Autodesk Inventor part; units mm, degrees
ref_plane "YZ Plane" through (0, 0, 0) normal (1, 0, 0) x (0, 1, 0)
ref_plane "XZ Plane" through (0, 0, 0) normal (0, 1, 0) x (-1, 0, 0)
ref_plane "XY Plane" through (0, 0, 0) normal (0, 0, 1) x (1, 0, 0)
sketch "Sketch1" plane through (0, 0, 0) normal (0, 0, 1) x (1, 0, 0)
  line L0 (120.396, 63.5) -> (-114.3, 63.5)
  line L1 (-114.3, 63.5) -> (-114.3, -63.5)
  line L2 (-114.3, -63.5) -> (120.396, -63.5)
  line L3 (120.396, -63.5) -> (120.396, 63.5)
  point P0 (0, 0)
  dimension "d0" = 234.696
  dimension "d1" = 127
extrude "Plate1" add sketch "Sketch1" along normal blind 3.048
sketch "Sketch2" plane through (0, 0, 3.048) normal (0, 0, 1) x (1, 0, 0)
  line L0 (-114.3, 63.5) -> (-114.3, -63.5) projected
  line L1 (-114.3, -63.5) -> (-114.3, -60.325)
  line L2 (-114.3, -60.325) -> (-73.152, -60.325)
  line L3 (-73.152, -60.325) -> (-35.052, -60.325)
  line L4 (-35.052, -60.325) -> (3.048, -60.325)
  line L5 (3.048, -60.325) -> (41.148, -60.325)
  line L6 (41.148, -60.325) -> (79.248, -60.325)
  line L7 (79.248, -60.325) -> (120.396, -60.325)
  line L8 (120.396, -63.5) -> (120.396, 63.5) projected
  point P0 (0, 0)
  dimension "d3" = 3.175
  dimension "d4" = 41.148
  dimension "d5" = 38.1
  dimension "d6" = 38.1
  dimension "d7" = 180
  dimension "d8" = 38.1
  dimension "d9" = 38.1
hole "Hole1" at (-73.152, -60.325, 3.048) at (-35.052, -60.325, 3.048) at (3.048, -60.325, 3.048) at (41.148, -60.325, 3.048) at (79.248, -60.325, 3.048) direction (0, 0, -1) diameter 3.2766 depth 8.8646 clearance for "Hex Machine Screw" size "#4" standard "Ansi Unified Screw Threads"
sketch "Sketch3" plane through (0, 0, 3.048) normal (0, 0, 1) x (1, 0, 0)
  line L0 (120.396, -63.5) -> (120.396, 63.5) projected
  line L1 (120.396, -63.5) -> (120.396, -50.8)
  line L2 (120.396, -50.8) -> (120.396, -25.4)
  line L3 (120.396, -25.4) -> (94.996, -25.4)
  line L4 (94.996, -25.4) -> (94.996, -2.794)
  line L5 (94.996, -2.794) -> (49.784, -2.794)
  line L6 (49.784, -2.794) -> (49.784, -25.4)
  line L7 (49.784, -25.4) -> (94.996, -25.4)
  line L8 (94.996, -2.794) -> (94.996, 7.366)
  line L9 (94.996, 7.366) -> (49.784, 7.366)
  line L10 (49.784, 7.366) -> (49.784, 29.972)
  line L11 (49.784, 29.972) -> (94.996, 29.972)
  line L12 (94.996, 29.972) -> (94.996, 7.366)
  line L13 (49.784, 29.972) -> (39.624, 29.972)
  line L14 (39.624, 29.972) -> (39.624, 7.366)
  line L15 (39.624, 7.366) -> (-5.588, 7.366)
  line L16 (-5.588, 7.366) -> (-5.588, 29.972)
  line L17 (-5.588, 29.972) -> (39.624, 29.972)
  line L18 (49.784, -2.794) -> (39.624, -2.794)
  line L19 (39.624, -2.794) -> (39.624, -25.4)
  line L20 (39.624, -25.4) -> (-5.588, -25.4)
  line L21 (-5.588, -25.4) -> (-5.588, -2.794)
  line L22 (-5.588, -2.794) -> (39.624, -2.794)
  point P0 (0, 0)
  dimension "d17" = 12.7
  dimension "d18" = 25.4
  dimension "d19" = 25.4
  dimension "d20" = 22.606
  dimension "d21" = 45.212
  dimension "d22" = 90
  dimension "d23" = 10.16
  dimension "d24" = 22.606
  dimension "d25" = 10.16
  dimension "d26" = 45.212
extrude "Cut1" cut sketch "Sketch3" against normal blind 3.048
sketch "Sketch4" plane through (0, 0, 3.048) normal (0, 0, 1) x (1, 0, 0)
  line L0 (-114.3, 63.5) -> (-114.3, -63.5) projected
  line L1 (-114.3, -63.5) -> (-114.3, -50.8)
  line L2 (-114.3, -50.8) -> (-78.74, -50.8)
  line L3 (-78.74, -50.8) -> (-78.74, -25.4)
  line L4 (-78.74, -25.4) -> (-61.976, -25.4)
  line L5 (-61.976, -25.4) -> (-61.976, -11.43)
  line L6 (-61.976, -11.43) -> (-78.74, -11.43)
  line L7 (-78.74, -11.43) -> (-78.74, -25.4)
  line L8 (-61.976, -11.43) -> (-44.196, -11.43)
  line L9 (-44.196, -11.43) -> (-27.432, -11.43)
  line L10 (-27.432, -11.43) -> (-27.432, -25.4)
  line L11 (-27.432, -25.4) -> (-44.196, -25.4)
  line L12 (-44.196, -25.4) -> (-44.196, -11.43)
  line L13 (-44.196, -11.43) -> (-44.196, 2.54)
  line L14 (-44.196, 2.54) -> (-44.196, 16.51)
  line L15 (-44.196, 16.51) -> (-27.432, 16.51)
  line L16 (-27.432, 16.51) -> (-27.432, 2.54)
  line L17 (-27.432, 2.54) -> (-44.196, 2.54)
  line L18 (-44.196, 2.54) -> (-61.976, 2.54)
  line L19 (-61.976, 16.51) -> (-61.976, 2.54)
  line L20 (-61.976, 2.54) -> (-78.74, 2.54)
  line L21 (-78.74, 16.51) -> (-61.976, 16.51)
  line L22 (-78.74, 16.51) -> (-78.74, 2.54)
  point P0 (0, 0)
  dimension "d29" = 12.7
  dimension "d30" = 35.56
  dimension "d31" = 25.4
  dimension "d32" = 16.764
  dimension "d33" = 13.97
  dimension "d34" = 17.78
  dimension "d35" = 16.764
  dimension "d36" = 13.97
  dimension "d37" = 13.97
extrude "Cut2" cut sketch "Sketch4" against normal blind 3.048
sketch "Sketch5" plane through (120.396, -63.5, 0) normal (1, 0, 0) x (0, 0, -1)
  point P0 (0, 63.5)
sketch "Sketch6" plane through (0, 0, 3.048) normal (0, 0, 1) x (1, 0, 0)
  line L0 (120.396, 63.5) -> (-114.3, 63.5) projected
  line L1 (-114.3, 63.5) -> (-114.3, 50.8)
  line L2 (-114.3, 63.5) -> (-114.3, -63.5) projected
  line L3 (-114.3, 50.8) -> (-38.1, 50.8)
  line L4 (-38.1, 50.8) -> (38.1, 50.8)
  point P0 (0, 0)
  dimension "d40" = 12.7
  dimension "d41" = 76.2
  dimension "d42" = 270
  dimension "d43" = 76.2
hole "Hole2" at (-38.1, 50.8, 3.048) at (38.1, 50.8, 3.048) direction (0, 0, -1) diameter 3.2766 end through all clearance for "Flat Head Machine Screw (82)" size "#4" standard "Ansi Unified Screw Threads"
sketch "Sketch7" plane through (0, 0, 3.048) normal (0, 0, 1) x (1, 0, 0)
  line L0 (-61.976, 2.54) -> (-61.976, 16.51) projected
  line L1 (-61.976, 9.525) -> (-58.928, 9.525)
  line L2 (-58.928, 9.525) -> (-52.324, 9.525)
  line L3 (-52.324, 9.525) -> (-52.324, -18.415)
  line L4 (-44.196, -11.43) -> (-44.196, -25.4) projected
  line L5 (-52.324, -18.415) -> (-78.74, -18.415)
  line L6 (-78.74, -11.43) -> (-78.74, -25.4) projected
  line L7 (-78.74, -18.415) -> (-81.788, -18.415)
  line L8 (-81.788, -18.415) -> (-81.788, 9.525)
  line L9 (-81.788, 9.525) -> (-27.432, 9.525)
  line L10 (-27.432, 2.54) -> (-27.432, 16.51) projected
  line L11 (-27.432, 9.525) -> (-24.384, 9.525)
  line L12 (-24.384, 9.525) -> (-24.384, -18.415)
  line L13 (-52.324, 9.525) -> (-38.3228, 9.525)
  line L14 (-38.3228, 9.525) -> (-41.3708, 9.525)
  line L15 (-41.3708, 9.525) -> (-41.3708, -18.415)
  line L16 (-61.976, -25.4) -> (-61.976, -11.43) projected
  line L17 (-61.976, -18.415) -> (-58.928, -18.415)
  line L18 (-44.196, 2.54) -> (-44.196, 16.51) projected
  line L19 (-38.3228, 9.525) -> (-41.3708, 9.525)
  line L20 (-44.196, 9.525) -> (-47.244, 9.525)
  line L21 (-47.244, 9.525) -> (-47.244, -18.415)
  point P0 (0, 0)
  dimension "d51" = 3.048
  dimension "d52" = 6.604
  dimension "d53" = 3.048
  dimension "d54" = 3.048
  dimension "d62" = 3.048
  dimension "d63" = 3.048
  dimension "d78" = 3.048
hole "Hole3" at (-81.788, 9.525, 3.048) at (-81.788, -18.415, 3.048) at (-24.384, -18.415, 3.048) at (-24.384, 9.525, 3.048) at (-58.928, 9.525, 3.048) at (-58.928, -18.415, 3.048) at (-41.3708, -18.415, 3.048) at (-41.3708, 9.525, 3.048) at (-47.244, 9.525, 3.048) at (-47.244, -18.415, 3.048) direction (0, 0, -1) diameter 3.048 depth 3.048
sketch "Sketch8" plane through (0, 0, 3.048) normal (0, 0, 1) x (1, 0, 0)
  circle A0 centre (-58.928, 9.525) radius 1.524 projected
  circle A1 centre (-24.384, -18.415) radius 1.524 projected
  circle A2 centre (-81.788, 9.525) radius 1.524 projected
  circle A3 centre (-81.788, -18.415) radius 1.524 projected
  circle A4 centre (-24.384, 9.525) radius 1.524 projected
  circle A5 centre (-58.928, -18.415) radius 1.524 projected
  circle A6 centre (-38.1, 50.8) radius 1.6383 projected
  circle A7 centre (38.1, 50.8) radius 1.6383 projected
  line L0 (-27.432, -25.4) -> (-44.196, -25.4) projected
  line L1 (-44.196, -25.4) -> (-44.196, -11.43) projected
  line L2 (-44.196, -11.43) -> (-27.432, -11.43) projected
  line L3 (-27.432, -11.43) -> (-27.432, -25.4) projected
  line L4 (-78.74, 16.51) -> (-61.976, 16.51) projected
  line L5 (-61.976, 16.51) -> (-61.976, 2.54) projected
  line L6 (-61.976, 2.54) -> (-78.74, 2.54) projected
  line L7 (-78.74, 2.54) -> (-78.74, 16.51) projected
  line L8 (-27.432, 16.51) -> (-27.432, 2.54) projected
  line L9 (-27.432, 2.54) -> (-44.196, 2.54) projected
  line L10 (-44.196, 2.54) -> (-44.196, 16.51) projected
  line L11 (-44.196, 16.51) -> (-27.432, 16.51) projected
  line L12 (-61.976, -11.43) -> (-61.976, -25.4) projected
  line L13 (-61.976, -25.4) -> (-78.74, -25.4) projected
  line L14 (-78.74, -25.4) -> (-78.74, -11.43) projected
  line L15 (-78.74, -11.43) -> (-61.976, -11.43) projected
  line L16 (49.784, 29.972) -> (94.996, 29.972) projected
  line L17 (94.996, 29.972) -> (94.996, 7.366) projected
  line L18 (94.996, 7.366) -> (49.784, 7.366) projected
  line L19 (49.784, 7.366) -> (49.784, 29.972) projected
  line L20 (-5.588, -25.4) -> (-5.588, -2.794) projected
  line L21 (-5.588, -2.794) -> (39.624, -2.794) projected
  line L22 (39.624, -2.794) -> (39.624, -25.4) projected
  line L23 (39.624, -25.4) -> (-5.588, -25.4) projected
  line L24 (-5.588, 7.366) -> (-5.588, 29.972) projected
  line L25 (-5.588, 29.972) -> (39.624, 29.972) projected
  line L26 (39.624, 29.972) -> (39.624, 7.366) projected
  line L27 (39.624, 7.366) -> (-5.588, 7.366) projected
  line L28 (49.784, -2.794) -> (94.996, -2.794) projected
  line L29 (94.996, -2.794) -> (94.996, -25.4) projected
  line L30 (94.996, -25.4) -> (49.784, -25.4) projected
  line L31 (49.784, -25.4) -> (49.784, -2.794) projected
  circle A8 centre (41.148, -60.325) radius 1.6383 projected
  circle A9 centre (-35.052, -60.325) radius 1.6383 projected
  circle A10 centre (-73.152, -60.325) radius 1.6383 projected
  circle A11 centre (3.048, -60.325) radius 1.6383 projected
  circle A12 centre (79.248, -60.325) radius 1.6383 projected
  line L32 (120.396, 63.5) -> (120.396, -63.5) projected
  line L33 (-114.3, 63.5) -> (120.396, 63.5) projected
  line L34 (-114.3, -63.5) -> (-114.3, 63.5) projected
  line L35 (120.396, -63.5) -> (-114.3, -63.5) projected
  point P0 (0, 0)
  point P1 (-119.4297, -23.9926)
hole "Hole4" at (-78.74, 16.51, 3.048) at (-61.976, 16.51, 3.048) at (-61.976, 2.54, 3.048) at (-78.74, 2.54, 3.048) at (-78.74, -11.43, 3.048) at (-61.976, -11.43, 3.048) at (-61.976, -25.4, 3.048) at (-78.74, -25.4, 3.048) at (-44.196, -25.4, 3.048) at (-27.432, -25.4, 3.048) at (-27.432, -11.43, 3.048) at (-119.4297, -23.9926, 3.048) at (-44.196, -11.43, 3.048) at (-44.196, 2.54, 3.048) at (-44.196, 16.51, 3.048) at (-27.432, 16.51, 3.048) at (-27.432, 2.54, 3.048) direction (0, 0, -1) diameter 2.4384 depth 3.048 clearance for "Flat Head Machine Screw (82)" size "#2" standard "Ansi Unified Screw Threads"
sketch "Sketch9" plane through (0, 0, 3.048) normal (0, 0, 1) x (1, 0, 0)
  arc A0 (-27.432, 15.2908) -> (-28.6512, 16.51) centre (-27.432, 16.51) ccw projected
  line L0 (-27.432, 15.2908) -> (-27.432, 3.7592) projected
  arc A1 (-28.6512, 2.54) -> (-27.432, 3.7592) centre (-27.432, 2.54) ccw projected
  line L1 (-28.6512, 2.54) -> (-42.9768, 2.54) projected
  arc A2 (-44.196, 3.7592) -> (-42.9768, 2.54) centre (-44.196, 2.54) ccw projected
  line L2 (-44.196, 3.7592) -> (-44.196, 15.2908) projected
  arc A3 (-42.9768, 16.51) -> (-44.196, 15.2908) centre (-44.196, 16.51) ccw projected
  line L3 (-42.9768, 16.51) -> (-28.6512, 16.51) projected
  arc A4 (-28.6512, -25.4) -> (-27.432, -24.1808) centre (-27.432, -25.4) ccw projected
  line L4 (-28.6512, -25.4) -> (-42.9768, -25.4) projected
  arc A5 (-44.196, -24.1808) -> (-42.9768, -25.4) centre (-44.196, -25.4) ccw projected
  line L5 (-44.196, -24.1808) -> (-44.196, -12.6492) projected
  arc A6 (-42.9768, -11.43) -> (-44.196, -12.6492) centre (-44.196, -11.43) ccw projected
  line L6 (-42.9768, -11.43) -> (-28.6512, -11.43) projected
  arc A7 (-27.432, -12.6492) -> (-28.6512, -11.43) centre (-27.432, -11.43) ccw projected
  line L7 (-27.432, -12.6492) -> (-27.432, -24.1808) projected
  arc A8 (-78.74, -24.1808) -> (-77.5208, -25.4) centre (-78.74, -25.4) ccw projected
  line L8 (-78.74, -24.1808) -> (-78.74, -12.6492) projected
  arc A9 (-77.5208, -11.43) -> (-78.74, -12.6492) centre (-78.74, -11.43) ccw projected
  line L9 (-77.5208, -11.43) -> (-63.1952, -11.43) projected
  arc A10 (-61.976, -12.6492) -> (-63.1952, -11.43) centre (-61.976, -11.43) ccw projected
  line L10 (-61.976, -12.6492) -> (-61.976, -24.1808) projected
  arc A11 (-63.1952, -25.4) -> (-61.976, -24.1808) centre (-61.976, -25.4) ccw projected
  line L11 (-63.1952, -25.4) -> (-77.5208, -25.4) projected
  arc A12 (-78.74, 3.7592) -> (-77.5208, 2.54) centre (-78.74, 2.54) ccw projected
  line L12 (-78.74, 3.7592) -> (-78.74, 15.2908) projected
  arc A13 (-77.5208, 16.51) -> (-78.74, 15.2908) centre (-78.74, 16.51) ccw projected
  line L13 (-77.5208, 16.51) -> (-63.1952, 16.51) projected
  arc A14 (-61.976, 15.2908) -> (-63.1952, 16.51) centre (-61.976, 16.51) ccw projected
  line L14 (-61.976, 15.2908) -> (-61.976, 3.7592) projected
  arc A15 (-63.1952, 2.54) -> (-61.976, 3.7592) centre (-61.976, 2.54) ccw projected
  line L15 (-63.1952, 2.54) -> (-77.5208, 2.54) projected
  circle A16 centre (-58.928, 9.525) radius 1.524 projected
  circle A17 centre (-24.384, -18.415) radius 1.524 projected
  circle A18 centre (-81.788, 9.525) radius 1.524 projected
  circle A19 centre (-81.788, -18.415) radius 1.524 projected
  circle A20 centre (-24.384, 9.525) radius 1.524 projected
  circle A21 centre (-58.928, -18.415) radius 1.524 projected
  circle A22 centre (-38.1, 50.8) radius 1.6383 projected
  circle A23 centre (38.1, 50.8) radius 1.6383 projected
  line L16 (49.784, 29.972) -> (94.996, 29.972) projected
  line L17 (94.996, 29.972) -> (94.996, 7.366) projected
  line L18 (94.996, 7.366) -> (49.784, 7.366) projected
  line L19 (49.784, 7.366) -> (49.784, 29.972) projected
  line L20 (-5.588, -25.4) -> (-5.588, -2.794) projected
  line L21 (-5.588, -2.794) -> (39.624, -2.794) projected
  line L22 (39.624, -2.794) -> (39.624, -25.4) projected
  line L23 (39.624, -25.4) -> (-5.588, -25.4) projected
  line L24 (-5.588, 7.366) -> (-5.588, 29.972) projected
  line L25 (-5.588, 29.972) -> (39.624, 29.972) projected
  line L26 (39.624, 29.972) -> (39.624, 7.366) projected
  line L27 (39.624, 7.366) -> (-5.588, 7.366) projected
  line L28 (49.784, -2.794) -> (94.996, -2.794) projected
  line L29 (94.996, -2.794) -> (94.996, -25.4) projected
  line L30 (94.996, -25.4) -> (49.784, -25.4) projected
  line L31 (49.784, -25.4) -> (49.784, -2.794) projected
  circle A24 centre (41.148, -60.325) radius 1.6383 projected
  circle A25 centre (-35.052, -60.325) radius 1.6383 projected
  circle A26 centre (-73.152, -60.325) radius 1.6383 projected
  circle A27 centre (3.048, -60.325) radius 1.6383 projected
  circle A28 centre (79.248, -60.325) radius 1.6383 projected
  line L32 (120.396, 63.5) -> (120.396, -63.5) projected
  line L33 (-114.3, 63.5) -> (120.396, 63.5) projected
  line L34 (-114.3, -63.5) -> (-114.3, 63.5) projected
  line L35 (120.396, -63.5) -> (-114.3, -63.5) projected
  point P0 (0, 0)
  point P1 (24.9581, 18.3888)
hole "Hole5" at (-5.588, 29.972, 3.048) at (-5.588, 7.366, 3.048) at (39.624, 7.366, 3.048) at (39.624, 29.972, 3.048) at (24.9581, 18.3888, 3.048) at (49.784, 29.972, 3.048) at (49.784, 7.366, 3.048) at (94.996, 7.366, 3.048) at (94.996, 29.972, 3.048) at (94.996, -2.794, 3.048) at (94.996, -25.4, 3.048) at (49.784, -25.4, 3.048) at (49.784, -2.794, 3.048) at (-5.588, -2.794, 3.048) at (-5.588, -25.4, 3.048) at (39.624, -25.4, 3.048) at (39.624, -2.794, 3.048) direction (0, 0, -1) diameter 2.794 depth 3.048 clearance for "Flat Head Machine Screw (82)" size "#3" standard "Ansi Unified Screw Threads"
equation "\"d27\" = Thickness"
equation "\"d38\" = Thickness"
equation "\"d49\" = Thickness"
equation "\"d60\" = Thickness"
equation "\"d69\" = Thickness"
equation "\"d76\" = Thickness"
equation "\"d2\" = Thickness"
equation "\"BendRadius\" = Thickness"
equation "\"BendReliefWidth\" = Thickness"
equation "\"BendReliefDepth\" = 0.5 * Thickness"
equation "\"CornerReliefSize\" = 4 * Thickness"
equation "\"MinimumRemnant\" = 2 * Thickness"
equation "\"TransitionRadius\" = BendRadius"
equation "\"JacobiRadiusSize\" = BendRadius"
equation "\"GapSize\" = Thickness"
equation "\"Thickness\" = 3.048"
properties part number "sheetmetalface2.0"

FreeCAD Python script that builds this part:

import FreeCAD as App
import Part
import Sketcher
from FreeCAD import Vector
Q = App.Units.Quantity

doc = App.newDocument("Part")
params = doc.addObject("Spreadsheet::Sheet", "Params")
for row, (alias, value) in enumerate([
    ("sketch1_height", "5 in"),
    ("sketch1_width", "9.24 in"),
    ("pad1_length", "0.12 in"),
    ("sketch2_diameter", "0.129 in"),
    ("hole_diameter", "0.129 in"),
    ("hole_depth", "0.349 in"),
    ("sketch3_width", "1.78 in"),
    ("sketch3_height", "0.89 in"),
    ("pocket1_length", "0.12 in"),
    ("sketch4_width", "0.66 in"),
    ("sketch4_height", "0.55 in"),
    ("pocket2_length", "0.12 in"),
    ("sketch5_diameter", "0.129 in"),
    ("hole2_diameter", "0.129 in"),
    ("sketch6_diameter", "0.12 in"),
    ("hole3_diameter", "0.12 in"),
    ("hole3_depth", "0.12 in"),
    ("sketch7_diameter", "0.096 in"),
    ("hole4_diameter", "0.096 in"),
    ("hole4_depth", "0.12 in"),
    ("sketch8_diameter", "0.11 in"),
    ("hole5_diameter", "0.11 in"),
    ("hole5_depth", "0.12 in"),
], start=1):
    params.set(f"A{row}", alias)
    params.set(f"B{row}", "=" + value)
    params.setAlias(f"B{row}", alias)

body = doc.addObject("PartDesign::Body", "Body")

# Sketch on XY plane
sketch1 = doc.addObject("Sketcher::SketchObject", "Sketch")
body.addObject(sketch1)
sketch1.AttachmentSupport = (doc.XY_Plane, [""])
sketch1.MapMode = "FlatFace"
sketch1.addGeometry([
    Part.LineSegment(Vector(120.396, -63.5, 0), Vector(120.396, 63.5, 0)),
    Part.LineSegment(Vector(120.396, 63.5, 0), Vector(-114.3, 63.5, 0)),
    Part.LineSegment(Vector(-114.3, 63.5, 0), Vector(-114.3, -63.5, 0)),
    Part.LineSegment(Vector(-114.3, -63.5, 0), Vector(120.396, -63.5, 0)),
], False)
sketch1.addConstraint([
    Sketcher.Constraint("Coincident", 0, 2, 1, 1),
    Sketcher.Constraint("Coincident", 1, 2, 2, 1),
    Sketcher.Constraint("Coincident", 2, 2, 3, 1),
    Sketcher.Constraint("Coincident", 3, 2, 0, 1),
    Sketcher.Constraint("Vertical", 0),
    Sketcher.Constraint("Horizontal", 1),
    Sketcher.Constraint("Vertical", 2),
    Sketcher.Constraint("Horizontal", 3),
    Sketcher.Constraint("DistanceY", 0, 1, 0, 2, Q("5 in")),
    Sketcher.Constraint("DistanceX", 1, 2, 1, 1, Q("9.24 in")),
    Sketcher.Constraint("DistanceY", -1, 1, 0, 2, Q("2.5 in")),
    Sketcher.Constraint("DistanceX", 1, 2, -1, 1, Q("4.5 in")),
])
sketch1.setExpression("Constraints[8]", "Params.sketch1_height")
sketch1.setExpression("Constraints[9]", "Params.sketch1_width")
pad1 = doc.addObject("PartDesign::Pad", "Pad")
body.addObject(pad1)
pad1.Profile = sketch1
pad1.setExpression("Length", "Params.pad1_length")

# Sketch on XY plane
sketch2 = doc.addObject("Sketcher::SketchObject", "Sketch001")
body.addObject(sketch2)
sketch2.AttachmentSupport = (doc.XY_Plane, [""])
sketch2.MapMode = "FlatFace"
sketch2.AttachmentOffset = App.Placement(Vector(0, 0, 0.12 * 25.4), App.Rotation())
sketch2.addGeometry([
    Part.Circle(Vector(-73.152, -60.325, 0), Vector(0, 0, 1), 1.6383),  # 0
    Part.Circle(Vector(-35.052, -60.325, 0), Vector(0, 0, 1), 1.6383),  # 1
    Part.Circle(Vector(3.048, -60.325, 0), Vector(0, 0, 1), 1.6383),  # 2
    Part.Circle(Vector(41.148, -60.325, 0), Vector(0, 0, 1), 1.6383),  # 3
    Part.Circle(Vector(79.248, -60.325, 0), Vector(0, 0, 1), 1.6383),  # 4
], False)
sketch2.addConstraint([
    Sketcher.Constraint("Equal", 0, 1),
    Sketcher.Constraint("Equal", 1, 2),
    Sketcher.Constraint("Equal", 2, 3),
    Sketcher.Constraint("Equal", 3, 4),
    Sketcher.Constraint("Horizontal", 0, 3, 1, 3),
    Sketcher.Constraint("Horizontal", 1, 3, 2, 3),
    Sketcher.Constraint("Horizontal", 2, 3, 3, 3),
    Sketcher.Constraint("Horizontal", 3, 3, 4, 3),
    Sketcher.Constraint("Diameter", 0, Q("0.129 in")),
    Sketcher.Constraint("DistanceX", 0, 3, 2, 3, Q("3 in")),
    Sketcher.Constraint("DistanceX", 1, 3, 3, 3, Q("3 in")),
    Sketcher.Constraint("DistanceX", 2, 3, 4, 3, Q("3 in")),
    Sketcher.Constraint("DistanceX", 0, 3, 1, 3, Q("1.5 in")),
    Sketcher.Constraint("DistanceX", 0, 3, -1, 1, Q("2.88 in")),
    Sketcher.Constraint("DistanceY", 0, 3, -1, 1, Q("2.375 in")),
])
sketch2.setExpression("Constraints[8]", "Params.sketch2_diameter")
doc.recompute()
hole = doc.addObject("PartDesign::Hole", "Hole")
body.addObject(hole)
hole.Profile = sketch2
hole.ThreadType = "None"
hole.setExpression("Diameter", "Params.hole_diameter")
hole.DepthType = "Dimension"
hole.setExpression("Depth", "Params.hole_depth")
hole.DrillPoint = "Flat"

# Sketch on XY plane
sketch3 = doc.addObject("Sketcher::SketchObject", "Sketch002")
body.addObject(sketch3)
sketch3.AttachmentSupport = (doc.XY_Plane, [""])
sketch3.MapMode = "FlatFace"
sketch3.AttachmentOffset = App.Placement(Vector(0, 0, 0.12 * 25.4), App.Rotation())
sketch3.addGeometry([
    Part.LineSegment(Vector(49.784, -25.4, 0), Vector(94.996, -25.4, 0)),  # 0
    Part.LineSegment(Vector(94.996, -25.4, 0), Vector(94.996, -2.794, 0)),  # 1
    Part.LineSegment(Vector(94.996, -2.794, 0), Vector(49.784, -2.794, 0)),  # 2
    Part.LineSegment(Vector(49.784, -2.794, 0), Vector(49.784, -25.4, 0)),  # 3
    Part.LineSegment(Vector(39.624, -25.4, 0), Vector(39.624, -2.794, 0)),  # 4
    Part.LineSegment(Vector(39.624, -2.794, 0), Vector(-5.588, -2.794, 0)),  # 5
    Part.LineSegment(Vector(-5.588, -2.794, 0), Vector(-5.588, -25.4, 0)),  # 6
    Part.LineSegment(Vector(-5.588, -25.4, 0), Vector(39.624, -25.4, 0)),  # 7
    Part.LineSegment(Vector(39.624, 7.366, 0), Vector(39.624, 29.972, 0)),  # 8
    Part.LineSegment(Vector(39.624, 29.972, 0), Vector(-5.588, 29.972, 0)),  # 9
    Part.LineSegment(Vector(-5.588, 29.972, 0), Vector(-5.588, 7.366, 0)),  # 10
    Part.LineSegment(Vector(-5.588, 7.366, 0), Vector(39.624, 7.366, 0)),  # 11
    Part.LineSegment(Vector(49.784, 7.366, 0), Vector(94.996, 7.366, 0)),  # 12
    Part.LineSegment(Vector(94.996, 7.366, 0), Vector(94.996, 29.972, 0)),  # 13
    Part.LineSegment(Vector(94.996, 29.972, 0), Vector(49.784, 29.972, 0)),  # 14
    Part.LineSegment(Vector(49.784, 29.972, 0), Vector(49.784, 7.366, 0)),  # 15
], False)
sketch3.addConstraint([
    Sketcher.Constraint("Coincident", 0, 2, 1, 1),
    Sketcher.Constraint("Coincident", 1, 2, 2, 1),
    Sketcher.Constraint("Coincident", 2, 2, 3, 1),
    Sketcher.Constraint("Coincident", 3, 2, 0, 1),
    Sketcher.Constraint("Coincident", 4, 2, 5, 1),
    Sketcher.Constraint("Coincident", 5, 2, 6, 1),
    Sketcher.Constraint("Coincident", 6, 2, 7, 1),
    Sketcher.Constraint("Coincident", 7, 2, 4, 1),
    Sketcher.Constraint("Coincident", 8, 2, 9, 1),
    Sketcher.Constraint("Coincident", 9, 2, 10, 1),
    Sketcher.Constraint("Coincident", 10, 2, 11, 1),
    Sketcher.Constraint("Coincident", 11, 2, 8, 1),
    Sketcher.Constraint("Coincident", 12, 2, 13, 1),
    Sketcher.Constraint("Coincident", 13, 2, 14, 1),
    Sketcher.Constraint("Coincident", 14, 2, 15, 1),
    Sketcher.Constraint("Coincident", 15, 2, 12, 1),
    Sketcher.Constraint("Horizontal", 0),
    Sketcher.Constraint("Vertical", 1),
    Sketcher.Constraint("Horizontal", 2),
    Sketcher.Constraint("Vertical", 3),
    Sketcher.Constraint("Vertical", 4),
    Sketcher.Constraint("Horizontal", 5),
    Sketcher.Constraint("Vertical", 6),
    Sketcher.Constraint("Horizontal", 7),
    Sketcher.Constraint("Vertical", 8),
    Sketcher.Constraint("Horizontal", 9),
    Sketcher.Constraint("Vertical", 10),
    Sketcher.Constraint("Horizontal", 11),
    Sketcher.Constraint("Horizontal", 12),
    Sketcher.Constraint("Vertical", 13),
    Sketcher.Constraint("Horizontal", 14),
    Sketcher.Constraint("Vertical", 15),
    Sketcher.Constraint("Horizontal", 2, 2, 4, 2),
    Sketcher.Constraint("Horizontal", 3, 2, 6, 2),
    Sketcher.Constraint("Horizontal", 11, 2, 12, 2),
    Sketcher.Constraint("Horizontal", 9, 2, 13, 2),
    Sketcher.Constraint("Vertical", 7, 2, 8, 2),
    Sketcher.Constraint("Vertical", 6, 2, 9, 2),
    Sketcher.Constraint("Vertical", 1, 2, 12, 2),
    Sketcher.Constraint("Vertical", 3, 2, 14, 2),
    Sketcher.Constraint("Equal", 2, 5),
    Sketcher.Constraint("Equal", 6, 8),
    Sketcher.Constraint("DistanceY", 0, 2, -1, 1, Q("1 in")),
    Sketcher.Constraint("DistanceX", 0, 1, 0, 2, Q("1.78 in")),
    Sketcher.Constraint("DistanceY", 1, 1, 1, 2, Q("0.89 in")),
    Sketcher.Constraint("DistanceX", 4, 2, 2, 2, Q("0.4 in")),
    Sketcher.Constraint("DistanceY", 5, 2, 10, 2, Q("0.4 in")),
    Sketcher.Constraint("DistanceX", -1, 1, 0, 2, Q("3.74 in")),
])
sketch3.setExpression("Constraints[43]", "Params.sketch3_width")
sketch3.setExpression("Constraints[44]", "Params.sketch3_height")
pocket1 = doc.addObject("PartDesign::Pocket", "Pocket")
body.addObject(pocket1)
pocket1.Profile = sketch3
pocket1.setExpression("Length", "Params.pocket1_length")

# Sketch on XY plane
sketch4 = doc.addObject("Sketcher::SketchObject", "Sketch003")
body.addObject(sketch4)
sketch4.AttachmentSupport = (doc.XY_Plane, [""])
sketch4.MapMode = "FlatFace"
sketch4.AttachmentOffset = App.Placement(Vector(0, 0, 0.12 * 25.4), App.Rotation())
sketch4.addGeometry([
    Part.LineSegment(Vector(-78.74, -11.43, 0), Vector(-78.74, -25.4, 0)),  # 0
    Part.LineSegment(Vector(-78.74, -25.4, 0), Vector(-61.976, -25.4, 0)),  # 1
    Part.LineSegment(Vector(-61.976, -25.4, 0), Vector(-61.976, -11.43, 0)),  # 2
    Part.LineSegment(Vector(-61.976, -11.43, 0), Vector(-78.74, -11.43, 0)),  # 3
    Part.LineSegment(Vector(-78.74, 2.54, 0), Vector(-61.976, 2.54, 0)),  # 4
    Part.LineSegment(Vector(-61.976, 2.54, 0), Vector(-61.976, 16.51, 0)),  # 5
    Part.LineSegment(Vector(-61.976, 16.51, 0), Vector(-78.74, 16.51, 0)),  # 6
    Part.LineSegment(Vector(-78.74, 16.51, 0), Vector(-78.74, 2.54, 0)),  # 7
    Part.LineSegment(Vector(-44.196, 16.51, 0), Vector(-44.196, 2.54, 0)),  # 8
    Part.LineSegment(Vector(-44.196, 2.54, 0), Vector(-27.432, 2.54, 0)),  # 9
    Part.LineSegment(Vector(-27.432, 2.54, 0), Vector(-27.432, 16.51, 0)),  # 10
    Part.LineSegment(Vector(-27.432, 16.51, 0), Vector(-44.196, 16.51, 0)),  # 11
    Part.LineSegment(Vector(-27.432, -11.43, 0), Vector(-44.196, -11.43, 0)),  # 12
    Part.LineSegment(Vector(-44.196, -11.43, 0), Vector(-44.196, -25.4, 0)),  # 13
    Part.LineSegment(Vector(-44.196, -25.4, 0), Vector(-27.432, -25.4, 0)),  # 14
    Part.LineSegment(Vector(-27.432, -25.4, 0), Vector(-27.432, -11.43, 0)),  # 15
], False)
sketch4.addConstraint([
    Sketcher.Constraint("Coincident", 0, 2, 1, 1),
    Sketcher.Constraint("Coincident", 1, 2, 2, 1),
    Sketcher.Constraint("Coincident", 2, 2, 3, 1),
    Sketcher.Constraint("Coincident", 3, 2, 0, 1),
    Sketcher.Constraint("Coincident", 4, 2, 5, 1),
    Sketcher.Constraint("Coincident", 5, 2, 6, 1),
    Sketcher.Constraint("Coincident", 6, 2, 7, 1),
    Sketcher.Constraint("Coincident", 7, 2, 4, 1),
    Sketcher.Constraint("Coincident", 8, 2, 9, 1),
    Sketcher.Constraint("Coincident", 9, 2, 10, 1),
    Sketcher.Constraint("Coincident", 10, 2, 11, 1),
    Sketcher.Constraint("Coincident", 11, 2, 8, 1),
    Sketcher.Constraint("Coincident", 12, 2, 13, 1),
    Sketcher.Constraint("Coincident", 13, 2, 14, 1),
    Sketcher.Constraint("Coincident", 14, 2, 15, 1),
    Sketcher.Constraint("Coincident", 15, 2, 12, 1),
    Sketcher.Constraint("Vertical", 0),
    Sketcher.Constraint("Horizontal", 1),
    Sketcher.Constraint("Vertical", 2),
    Sketcher.Constraint("Horizontal", 3),
    Sketcher.Constraint("Horizontal", 4),
    Sketcher.Constraint("Vertical", 5),
    Sketcher.Constraint("Horizontal", 6),
    Sketcher.Constraint("Vertical", 7),
    Sketcher.Constraint("Vertical", 8),
    Sketcher.Constraint("Horizontal", 9),
    Sketcher.Constraint("Vertical", 10),
    Sketcher.Constraint("Horizontal", 11),
    Sketcher.Constraint("Horizontal", 12),
    Sketcher.Constraint("Vertical", 13),
    Sketcher.Constraint("Horizontal", 14),
    Sketcher.Constraint("Vertical", 15),
    Sketcher.Constraint("Horizontal", 7, 2, 8, 2),
    Sketcher.Constraint("Horizontal", 6, 2, 10, 2),
    Sketcher.Constraint("Horizontal", 3, 2, 12, 2),
    Sketcher.Constraint("Horizontal", 1, 2, 13, 2),
    Sketcher.Constraint("Vertical", 2, 2, 4, 2),
    Sketcher.Constraint("Vertical", 3, 2, 6, 2),
    Sketcher.Constraint("Vertical", 11, 2, 12, 2),
    Sketcher.Constraint("Vertical", 10, 2, 14, 2),
    Sketcher.Constraint("Equal", 6, 9),
    Sketcher.Constraint("Equal", 2, 5),
    Sketcher.Constraint("DistanceY", 0, 2, -1, 1, Q("1 in")),
    Sketcher.Constraint("DistanceX", 1, 1, 1, 2, Q("0.66 in")),
    Sketcher.Constraint("DistanceY", 0, 2, 0, 1, Q("0.55 in")),
    Sketcher.Constraint("DistanceX", 4, 2, 8, 2, Q("0.7 in")),
    Sketcher.Constraint("DistanceY", 2, 2, 4, 2, Q("0.55 in")),
    Sketcher.Constraint("DistanceX", 0, 2, -1, 1, Q("3.1 in")),
])
sketch4.setExpression("Constraints[43]", "Params.sketch4_width")
sketch4.setExpression("Constraints[44]", "Params.sketch4_height")
pocket2 = doc.addObject("PartDesign::Pocket", "Pocket001")
body.addObject(pocket2)
pocket2.Profile = sketch4
pocket2.setExpression("Length", "Params.pocket2_length")

# Sketch on XY plane
sketch5 = doc.addObject("Sketcher::SketchObject", "Sketch004")
body.addObject(sketch5)
sketch5.AttachmentSupport = (doc.XY_Plane, [""])
sketch5.MapMode = "FlatFace"
sketch5.AttachmentOffset = App.Placement(Vector(0, 0, 0.12 * 25.4), App.Rotation())
sketch5.addGeometry([
    Part.Circle(Vector(-38.1, 50.8, 0), Vector(0, 0, 1), 1.6383),
    Part.Circle(Vector(38.1, 50.8, 0), Vector(0, 0, 1), 1.6383),
], False)
sketch5.addConstraint([
    Sketcher.Constraint("Equal", 0, 1),
    Sketcher.Constraint("Symmetric", 0, 3, 1, 3, -2),
    Sketcher.Constraint("Diameter", 0, Q("0.129 in")),
    Sketcher.Constraint("DistanceY", -1, 1, 0, 3, Q("2 in")),
    Sketcher.Constraint("DistanceX", 0, 3, 1, 3, Q("3 in")),
])
sketch5.setExpression("Constraints[2]", "Params.sketch5_diameter")
doc.recompute()
hole2 = doc.addObject("PartDesign::Hole", "Hole001")
body.addObject(hole2)
hole2.Profile = sketch5
hole2.ThreadType = "None"
hole2.setExpression("Diameter", "Params.hole2_diameter")
hole2.DepthType = "ThroughAll"

# Sketch on XY plane
sketch6 = doc.addObject("Sketcher::SketchObject", "Sketch005")
body.addObject(sketch6)
sketch6.AttachmentSupport = (doc.XY_Plane, [""])
sketch6.MapMode = "FlatFace"
sketch6.AttachmentOffset = App.Placement(Vector(0, 0, 0.12 * 25.4), App.Rotation())
sketch6.addGeometry([
    Part.Circle(Vector(-81.788, 9.525, 0), Vector(0, 0, 1), 1.524),  # 0
    Part.Circle(Vector(-81.788, -18.415, 0), Vector(0, 0, 1), 1.524),  # 1
    Part.Circle(Vector(-24.384, -18.415, 0), Vector(0, 0, 1), 1.524),  # 2
    Part.Circle(Vector(-24.384, 9.525, 0), Vector(0, 0, 1), 1.524),  # 3
    Part.Circle(Vector(-58.928, 9.525, 0), Vector(0, 0, 1), 1.524),  # 4
    Part.Circle(Vector(-58.928, -18.415, 0), Vector(0, 0, 1), 1.524),  # 5
    Part.Circle(Vector(-41.3708, -18.415, 0), Vector(0, 0, 1), 1.524),  # 6
    Part.Circle(Vector(-41.3708, 9.525, 0), Vector(0, 0, 1), 1.524),  # 7
    Part.Circle(Vector(-47.244, 9.525, 0), Vector(0, 0, 1), 1.524),  # 8
    Part.Circle(Vector(-47.244, -18.415, 0), Vector(0, 0, 1), 1.524),  # 9
], False)
sketch6.addConstraint([
    Sketcher.Constraint("Equal", 0, 1),
    Sketcher.Constraint("Equal", 1, 2),
    Sketcher.Constraint("Equal", 2, 3),
    Sketcher.Constraint("Equal", 3, 4),
    Sketcher.Constraint("Equal", 4, 5),
    Sketcher.Constraint("Equal", 5, 6),
    Sketcher.Constraint("Equal", 6, 7),
    Sketcher.Constraint("Equal", 7, 8),
    Sketcher.Constraint("Equal", 8, 9),
    Sketcher.Constraint("Horizontal", 1, 3, 2, 3),
    Sketcher.Constraint("Horizontal", 0, 3, 3, 3),
    Sketcher.Constraint("Horizontal", 3, 3, 4, 3),
    Sketcher.Constraint("Horizontal", 2, 3, 5, 3),
    Sketcher.Constraint("Horizontal", 5, 3, 6, 3),
    Sketcher.Constraint("Horizontal", 4, 3, 7, 3),
    Sketcher.Constraint("Horizontal", 7, 3, 8, 3),
    Sketcher.Constraint("Horizontal", 6, 3, 9, 3),
    Sketcher.Constraint("Vertical", 0, 3, 1, 3),
    Sketcher.Constraint("Vertical", 2, 3, 3, 3),
    Sketcher.Constraint("Vertical", 4, 3, 5, 3),
    Sketcher.Constraint("Vertical", 6, 3, 7, 3),
    Sketcher.Constraint("Vertical", 8, 3, 9, 3),
    Sketcher.Constraint("Diameter", 0, Q("0.12 in")),
    Sketcher.Constraint("DistanceY", 1, 3, 0, 3, Q("1.1 in")),
    Sketcher.Constraint("DistanceX", 0, 3, 4, 3, Q("0.9 in")),
    Sketcher.Constraint("DistanceX", 8, 3, 3, 3, Q("0.9 in")),
    Sketcher.Constraint("DistanceX", 0, 3, -1, 1, Q("3.22 in")),
    Sketcher.Constraint("DistanceX", 2, 3, -1, 1, Q("0.96 in")),
    Sketcher.Constraint("DistanceY", -1, 1, 0, 3, Q("0.375 in")),
    Sketcher.Constraint("DistanceX", 6, 3, -1, 1, Q("41.3708 mm")),
])
sketch6.setExpression("Constraints[22]", "Params.sketch6_diameter")
doc.recompute()
hole3 = doc.addObject("PartDesign::Hole", "Hole002")
body.addObject(hole3)
hole3.Profile = sketch6
hole3.ThreadType = "None"
hole3.setExpression("Diameter", "Params.hole3_diameter")
hole3.DepthType = "Dimension"
hole3.setExpression("Depth", "Params.hole3_depth")
hole3.DrillPoint = "Flat"

# Sketch on XY plane
sketch7 = doc.addObject("Sketcher::SketchObject", "Sketch006")
body.addObject(sketch7)
sketch7.AttachmentSupport = (doc.XY_Plane, [""])
sketch7.MapMode = "FlatFace"
sketch7.AttachmentOffset = App.Placement(Vector(0, 0, 0.12 * 25.4), App.Rotation())
sketch7.addGeometry([
    Part.Circle(Vector(-78.74, 16.51, 0), Vector(0, 0, 1), 1.2192),  # 0
    Part.Circle(Vector(-61.976, 16.51, 0), Vector(0, 0, 1), 1.2192),  # 1
    Part.Circle(Vector(-61.976, 2.54, 0), Vector(0, 0, 1), 1.2192),  # 2
    Part.Circle(Vector(-78.74, 2.54, 0), Vector(0, 0, 1), 1.2192),  # 3
    Part.Circle(Vector(-78.74, -11.43, 0), Vector(0, 0, 1), 1.2192),  # 4
    Part.Circle(Vector(-61.976, -11.43, 0), Vector(0, 0, 1), 1.2192),  # 5
    Part.Circle(Vector(-61.976, -25.4, 0), Vector(0, 0, 1), 1.2192),  # 6
    Part.Circle(Vector(-78.74, -25.4, 0), Vector(0, 0, 1), 1.2192),  # 7
    Part.Circle(Vector(-44.196, -25.4, 0), Vector(0, 0, 1), 1.2192),  # 8
    Part.Circle(Vector(-27.432, -25.4, 0), Vector(0, 0, 1), 1.2192),  # 9
    Part.Circle(Vector(-27.432, -11.43, 0), Vector(0, 0, 1), 1.2192),  # 10
    Part.Circle(Vector(-119.4297, -23.9926, 0), Vector(0, 0, 1), 1.2192),  # 11
    Part.Circle(Vector(-44.196, -11.43, 0), Vector(0, 0, 1), 1.2192),  # 12
    Part.Circle(Vector(-44.196, 2.54, 0), Vector(0, 0, 1), 1.2192),  # 13
    Part.Circle(Vector(-44.196, 16.51, 0), Vector(0, 0, 1), 1.2192),  # 14
    Part.Circle(Vector(-27.432, 16.51, 0), Vector(0, 0, 1), 1.2192),  # 15
    Part.Circle(Vector(-27.432, 2.54, 0), Vector(0, 0, 1), 1.2192),  # 16
], False)
sketch7.addConstraint([
    Sketcher.Constraint("Equal", 0, 1),
    Sketcher.Constraint("Equal", 1, 2),
    Sketcher.Constraint("Equal", 2, 3),
    Sketcher.Constraint("Equal", 3, 4),
    Sketcher.Constraint("Equal", 4, 5),
    Sketcher.Constraint("Equal", 5, 6),
    Sketcher.Constraint("Equal", 6, 7),
    Sketcher.Constraint("Equal", 7, 8),
    Sketcher.Constraint("Equal", 8, 9),
    Sketcher.Constraint("Equal", 9, 10),
    Sketcher.Constraint("Equal", 10, 11),
    Sketcher.Constraint("Equal", 11, 12),
    Sketcher.Constraint("Equal", 12, 13),
    Sketcher.Constraint("Equal", 13, 14),
    Sketcher.Constraint("Equal", 14, 15),
    Sketcher.Constraint("Equal", 15, 16),
    Sketcher.Constraint("Horizontal", 0, 3, 1, 3),
    Sketcher.Constraint("Horizontal", 2, 3, 3, 3),
    Sketcher.Constraint("Horizontal", 4, 3, 5, 3),
    Sketcher.Constraint("Horizontal", 6, 3, 7, 3),
    Sketcher.Constraint("Horizontal", 7, 3, 8, 3),
    Sketcher.Constraint("Horizontal", 8, 3, 9, 3),
    Sketcher.Constraint("Horizontal", 5, 3, 10, 3),
    Sketcher.Constraint("Horizontal", 10, 3, 12, 3),
    Sketcher.Constraint("Horizontal", 3, 3, 13, 3),
    Sketcher.Constraint("Horizontal", 1, 3, 14, 3),
    Sketcher.Constraint("Horizontal", 14, 3, 15, 3),
    Sketcher.Constraint("Horizontal", 13, 3, 16, 3),
    Sketcher.Constraint("Vertical", 1, 3, 2, 3),
    Sketcher.Constraint("Vertical", 0, 3, 3, 3),
    Sketcher.Constraint("Vertical", 3, 3, 4, 3),
    Sketcher.Constraint("Vertical", 2, 3, 5, 3),
    Sketcher.Constraint("Vertical", 5, 3, 6, 3),
    Sketcher.Constraint("Vertical", 4, 3, 7, 3),
    Sketcher.Constraint("Vertical", 9, 3, 10, 3),
    Sketcher.Constraint("Vertical", 8, 3, 12, 3),
    Sketcher.Constraint("Vertical", 12, 3, 13, 3),
    Sketcher.Constraint("Vertical", 13, 3, 14, 3),
    Sketcher.Constraint("Vertical", 10, 3, 15, 3),
    Sketcher.Constraint("Vertical", 15, 3, 16, 3),
    Sketcher.Constraint("Diameter", 0, Q("0.096 in")),
    Sketcher.Constraint("DistanceY", 6, 3, -1, 1, Q("1 in")),
    Sketcher.Constraint("DistanceX", 0, 3, -1, 1, Q("3.1 in")),
    Sketcher.Constraint("DistanceY", -1, 1, 2, 3, Q("0.1 in")),
    Sketcher.Constraint("DistanceY", 4, 3, 0, 3, Q("1.1 in")),
    Sketcher.Constraint("DistanceX", 6, 3, 8, 3, Q("0.7 in")),
    Sketcher.Constraint("DistanceY", -1, 1, 0, 3, Q("0.65 in")),
    Sketcher.Constraint("DistanceX", 1, 3, -1, 1, Q("2.44 in")),
    Sketcher.Constraint("DistanceX", 9, 3, -1, 1, Q("1.08 in")),
    Sketcher.Constraint("DistanceY", 11, 3, -1, 1, Q("0.9446 in")),
    Sketcher.Constraint("DistanceX", 11, 3, -1, 1, Q("119.4297 mm")),
])
sketch7.setExpression("Constraints[40]", "Params.sketch7_diameter")
doc.recompute()
hole4 = doc.addObject("PartDesign::Hole", "Hole003")
body.addObject(hole4)
hole4.Profile = sketch7
hole4.ThreadType = "None"
hole4.setExpression("Diameter", "Params.hole4_diameter")
hole4.DepthType = "Dimension"
hole4.setExpression("Depth", "Params.hole4_depth")
hole4.DrillPoint = "Flat"

# Sketch on XY plane
sketch8 = doc.addObject("Sketcher::SketchObject", "Sketch007")
body.addObject(sketch8)
sketch8.AttachmentSupport = (doc.XY_Plane, [""])
sketch8.MapMode = "FlatFace"
sketch8.AttachmentOffset = App.Placement(Vector(0, 0, 0.12 * 25.4), App.Rotation())
sketch8.addGeometry([
    Part.Circle(Vector(-5.588, 29.972, 0), Vector(0, 0, 1), 1.397),  # 0
    Part.Circle(Vector(-5.588, 7.366, 0), Vector(0, 0, 1), 1.397),  # 1
    Part.Circle(Vector(39.624, 7.366, 0), Vector(0, 0, 1), 1.397),  # 2
    Part.Circle(Vector(39.624, 29.972, 0), Vector(0, 0, 1), 1.397),  # 3
    Part.Circle(Vector(24.9581, 18.3888, 0), Vector(0, 0, 1), 1.397),  # 4
    Part.Circle(Vector(49.784, 29.972, 0), Vector(0, 0, 1), 1.397),  # 5
    Part.Circle(Vector(49.784, 7.366, 0), Vector(0, 0, 1), 1.397),  # 6
    Part.Circle(Vector(94.996, 7.366, 0), Vector(0, 0, 1), 1.397),  # 7
    Part.Circle(Vector(94.996, 29.972, 0), Vector(0, 0, 1), 1.397),  # 8
    Part.Circle(Vector(94.996, -2.794, 0), Vector(0, 0, 1), 1.397),  # 9
    Part.Circle(Vector(94.996, -25.4, 0), Vector(0, 0, 1), 1.397),  # 10
    Part.Circle(Vector(49.784, -25.4, 0), Vector(0, 0, 1), 1.397),  # 11
    Part.Circle(Vector(49.784, -2.794, 0), Vector(0, 0, 1), 1.397),  # 12
    Part.Circle(Vector(-5.588, -2.794, 0), Vector(0, 0, 1), 1.397),  # 13
    Part.Circle(Vector(-5.588, -25.4, 0), Vector(0, 0, 1), 1.397),  # 14
    Part.Circle(Vector(39.624, -25.4, 0), Vector(0, 0, 1), 1.397),  # 15
    Part.Circle(Vector(39.624, -2.794, 0), Vector(0, 0, 1), 1.397),  # 16
], False)
sketch8.addConstraint([
    Sketcher.Constraint("Equal", 0, 1),
    Sketcher.Constraint("Equal", 1, 2),
    Sketcher.Constraint("Equal", 2, 3),
    Sketcher.Constraint("Equal", 3, 4),
    Sketcher.Constraint("Equal", 4, 5),
    Sketcher.Constraint("Equal", 5, 6),
    Sketcher.Constraint("Equal", 6, 7),
    Sketcher.Constraint("Equal", 7, 8),
    Sketcher.Constraint("Equal", 8, 9),
    Sketcher.Constraint("Equal", 9, 10),
    Sketcher.Constraint("Equal", 10, 11),
    Sketcher.Constraint("Equal", 11, 12),
    Sketcher.Constraint("Equal", 12, 13),
    Sketcher.Constraint("Equal", 13, 14),
    Sketcher.Constraint("Equal", 14, 15),
    Sketcher.Constraint("Equal", 15, 16),
    Sketcher.Constraint("Horizontal", 1, 3, 2, 3),
    Sketcher.Constraint("Horizontal", 0, 3, 3, 3),
    Sketcher.Constraint("Horizontal", 3, 3, 5, 3),
    Sketcher.Constraint("Horizontal", 2, 3, 6, 3),
    Sketcher.Constraint("Horizontal", 6, 3, 7, 3),
    Sketcher.Constraint("Horizontal", 5, 3, 8, 3),
    Sketcher.Constraint("Horizontal", 10, 3, 11, 3),
    Sketcher.Constraint("Horizontal", 9, 3, 12, 3),
    Sketcher.Constraint("Horizontal", 12, 3, 13, 3),
    Sketcher.Constraint("Horizontal", 11, 3, 14, 3),
    Sketcher.Constraint("Horizontal", 14, 3, 15, 3),
    Sketcher.Constraint("Horizontal", 13, 3, 16, 3),
    Sketcher.Constraint("Vertical", 0, 3, 1, 3),
    Sketcher.Constraint("Vertical", 2, 3, 3, 3),
    Sketcher.Constraint("Vertical", 5, 3, 6, 3),
    Sketcher.Constraint("Vertical", 7, 3, 8, 3),
    Sketcher.Constraint("Vertical", 8, 3, 9, 3),
    Sketcher.Constraint("Vertical", 9, 3, 10, 3),
    Sketcher.Constraint("Vertical", 6, 3, 11, 3),
    Sketcher.Constraint("Vertical", 11, 3, 12, 3),
    Sketcher.Constraint("Vertical", 1, 3, 13, 3),
    Sketcher.Constraint("Vertical", 13, 3, 14, 3),
    Sketcher.Constraint("Vertical", 3, 3, 15, 3),
    Sketcher.Constraint("Vertical", 15, 3, 16, 3),
    Sketcher.Constraint("Diameter", 0, Q("0.11 in")),
    Sketcher.Constraint("DistanceY", 10, 3, -1, 1, Q("1 in")),
    Sketcher.Constraint("DistanceX", 3, 3, 5, 3, Q("0.4 in")),
    Sketcher.Constraint("DistanceY", 9, 3, 7, 3, Q("0.4 in")),
    Sketcher.Constraint("DistanceX", 0, 3, -1, 1, Q("0.22 in")),
    Sketcher.Constraint("DistanceY", -1, 1, 0, 3, Q("1.18 in")),
    Sketcher.Constraint("DistanceY", -1, 1, 1, 3, Q("0.29 in")),
    Sketcher.Constraint("DistanceX", -1, 1, 2, 3, Q("1.56 in")),
    Sketcher.Constraint("DistanceX", -1, 1, 7, 3, Q("3.74 in")),
    Sketcher.Constraint("DistanceX", -1, 1, 4, 3, Q("0.9826 in")),
    Sketcher.Constraint("DistanceY", -1, 1, 4, 3, Q("18.3888 mm")),
])
sketch8.setExpression("Constraints[40]", "Params.sketch8_diameter")
doc.recompute()
hole5 = doc.addObject("PartDesign::Hole", "Hole004")
body.addObject(hole5)
hole5.Profile = sketch8
hole5.ThreadType = "None"
hole5.setExpression("Diameter", "Params.hole5_diameter")
hole5.DepthType = "Dimension"
hole5.setExpression("Depth", "Params.hole5_depth")
hole5.DrillPoint = "Flat"

doc.recompute()
